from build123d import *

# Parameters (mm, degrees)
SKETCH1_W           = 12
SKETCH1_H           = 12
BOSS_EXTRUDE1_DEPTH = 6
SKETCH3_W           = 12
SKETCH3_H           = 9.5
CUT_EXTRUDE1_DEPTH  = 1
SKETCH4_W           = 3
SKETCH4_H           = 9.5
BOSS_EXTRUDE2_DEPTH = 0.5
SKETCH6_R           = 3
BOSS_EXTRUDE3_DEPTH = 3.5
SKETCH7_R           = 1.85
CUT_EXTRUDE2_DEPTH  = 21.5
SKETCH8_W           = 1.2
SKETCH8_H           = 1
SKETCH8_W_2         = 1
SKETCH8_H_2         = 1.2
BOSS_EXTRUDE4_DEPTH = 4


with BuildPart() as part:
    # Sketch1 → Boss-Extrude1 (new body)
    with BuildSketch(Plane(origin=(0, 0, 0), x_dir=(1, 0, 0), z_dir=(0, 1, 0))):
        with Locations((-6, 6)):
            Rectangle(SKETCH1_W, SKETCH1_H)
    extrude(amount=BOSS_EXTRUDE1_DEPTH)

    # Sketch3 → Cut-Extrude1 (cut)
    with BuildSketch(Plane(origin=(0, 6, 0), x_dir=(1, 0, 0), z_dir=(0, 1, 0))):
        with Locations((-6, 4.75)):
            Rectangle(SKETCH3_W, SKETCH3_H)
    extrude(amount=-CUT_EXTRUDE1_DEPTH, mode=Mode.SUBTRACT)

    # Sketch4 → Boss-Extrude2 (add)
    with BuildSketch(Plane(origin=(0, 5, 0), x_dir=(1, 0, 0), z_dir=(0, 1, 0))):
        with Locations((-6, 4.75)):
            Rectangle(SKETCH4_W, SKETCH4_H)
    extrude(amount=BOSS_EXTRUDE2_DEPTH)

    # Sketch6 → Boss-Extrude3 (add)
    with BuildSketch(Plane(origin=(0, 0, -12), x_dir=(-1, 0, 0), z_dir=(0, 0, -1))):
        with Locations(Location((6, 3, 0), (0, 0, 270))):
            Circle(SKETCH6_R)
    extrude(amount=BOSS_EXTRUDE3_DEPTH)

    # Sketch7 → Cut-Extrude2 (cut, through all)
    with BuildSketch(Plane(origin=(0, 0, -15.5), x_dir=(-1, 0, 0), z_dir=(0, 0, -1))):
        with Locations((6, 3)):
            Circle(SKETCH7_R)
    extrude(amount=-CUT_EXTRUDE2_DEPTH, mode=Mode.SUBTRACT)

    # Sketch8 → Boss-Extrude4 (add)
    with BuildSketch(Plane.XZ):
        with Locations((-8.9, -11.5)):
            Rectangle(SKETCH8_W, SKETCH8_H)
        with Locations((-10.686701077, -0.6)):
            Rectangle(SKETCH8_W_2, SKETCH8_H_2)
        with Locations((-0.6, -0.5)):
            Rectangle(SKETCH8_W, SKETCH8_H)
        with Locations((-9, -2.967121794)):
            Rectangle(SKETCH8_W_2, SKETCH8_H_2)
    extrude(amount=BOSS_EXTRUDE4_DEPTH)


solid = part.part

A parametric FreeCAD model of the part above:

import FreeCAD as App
import Part
import Sketcher

V = App.Vector
Q = App.Units.Quantity


def add_polygon(sketch, points):
    """Adds a closed chain of lines whose ends are joined by coincident constraints."""
    first, n = sketch.GeometryCount, len(points)
    for a, b in zip(points, points[1:] + points[:1]):
        sketch.addGeometry(Part.LineSegment(App.Vector(*a, 0), App.Vector(*b, 0)), False)
    for i in range(n):
        sketch.addConstraint(Sketcher.Constraint("Coincident", first + i, 2, first + (i + 1) % n, 1))

doc = App.newDocument("Part")
body = doc.addObject("PartDesign::Body", "Body")

# Sketch on XZ plane
sketch1 = body.newObject("Sketcher::SketchObject", "Sketch")
sketch1.AttachmentSupport = (doc.getObject("XZ_Plane"), [""])
sketch1.MapMode = "FlatFace"
add_polygon(sketch1, [(-12, -12), (-12, 0), (0, 0), (0, -12)])  # lines 0-3
sketch1.addConstraint([
    Sketcher.Constraint("Vertical", 0),
    Sketcher.Constraint("Horizontal", 1),
    Sketcher.Constraint("Vertical", 2),
    Sketcher.Constraint("Horizontal", 3),
    Sketcher.Constraint("Coincident", 1, 2, -1, 1),
    Sketcher.Constraint("Equal", 3, 0),
    Sketcher.Constraint("DistanceX", 1, 1, 1, 2, Q("12 mm")),
])
pad1 = body.newObject("PartDesign::Pad", "Pad")
pad1.Profile = sketch1
pad1.Length = 6
pad1.Reversed = True

# Sketch on XZ plane
sketch2 = body.newObject("Sketcher::SketchObject", "Sketch001")
sketch2.AttachmentSupport = (doc.getObject("XZ_Plane"), [""])
sketch2.MapMode = "FlatFace"
sketch2.AttachmentOffset = App.Placement(V(0, 0, -6), App.Rotation())
add_polygon(sketch2, [(-12, -9.5), (-12, 0), (0, 0), (0, -9.5)])  # lines 0-3
sketch2.addConstraint([
    Sketcher.Constraint("Vertical", 0),
    Sketcher.Constraint("Horizontal", 1),
    Sketcher.Constraint("Vertical", 2),
    Sketcher.Constraint("Horizontal", 3),
    Sketcher.Constraint("Coincident", 1, 2, -1, 1),
    Sketcher.Constraint("DistanceX", 1, 1, 1, 2, Q("12 mm")),
    Sketcher.Constraint("DistanceY", 0, 1, 0, 2, Q("9.5 mm")),
])
pocket1 = body.newObject("PartDesign::Pocket", "Pocket")
pocket1.Profile = sketch2
pocket1.Length = 1
pocket1.Reversed = True

# Sketch on XZ plane
sketch3 = body.newObject("Sketcher::SketchObject", "Sketch002")
sketch3.AttachmentSupport = (doc.getObject("XZ_Plane"), [""])
sketch3.MapMode = "FlatFace"
sketch3.AttachmentOffset = App.Placement(V(0, 0, -5), App.Rotation())
add_polygon(sketch3, [(-7.5, -9.5), (-7.5, 0), (-4.5, 0), (-4.5, -9.5)])  # lines 0-3
sketch3.addConstraint([
    Sketcher.Constraint("Vertical", 0),
    Sketcher.Constraint("Horizontal", 1),
    Sketcher.Constraint("Vertical", 2),
    Sketcher.Constraint("Horizontal", 3),
    Sketcher.Constraint("PointOnObject", 0, 2, -1),
    Sketcher.Constraint("DistanceX", 1, 1, 1, 2, Q("3 mm")),
    Sketcher.Constraint("DistanceY", 0, 1, 0, 2, Q("9.5 mm")),
    Sketcher.Constraint("DistanceX", 0, 2, -1, 1, Q("7.5 mm")),
])
pad2 = body.newObject("PartDesign::Pad", "Pad001")
pad2.Profile = sketch3
pad2.Length = 0.5
pad2.Reversed = True

# Sketch on XY plane
sketch4 = body.newObject("Sketcher::SketchObject", "Sketch003")
sketch4.AttachmentSupport = (doc.getObject("XY_Plane"), [""])
sketch4.MapMode = "FlatFace"
sketch4.AttachmentOffset = App.Placement(V(0, 0, -12), App.Rotation())
sketch4.addGeometry(Part.Circle(V(-6, 3, 0), V(0, 0, 1), 3), False)
sketch4.addConstraint([
    Sketcher.Constraint("Diameter", 0, Q("6 mm")),
    Sketcher.Constraint("DistanceX", 0, 3, -1, 1, Q("6 mm")),
    Sketcher.Constraint("DistanceY", -1, 1, 0, 3, Q("3 mm")),
])
pad3 = body.newObject("PartDesign::Pad", "Pad002")
pad3.Profile = sketch4
pad3.Length = 3.5
pad3.Reversed = True

# Sketch on XY plane
sketch5 = body.newObject("Sketcher::SketchObject", "Sketch004")
sketch5.AttachmentSupport = (doc.getObject("XY_Plane"), [""])
sketch5.MapMode = "FlatFace"
sketch5.AttachmentOffset = App.Placement(V(0, 0, -15.5), App.Rotation())
sketch5.addGeometry(Part.Circle(V(-6, 3, 0), V(0, 0, 1), 1.85), False)
sketch5.addConstraint([
    Sketcher.Constraint("Diameter", 0, Q("3.7 mm")),
    Sketcher.Constraint("DistanceX", 0, 3, -1, 1, Q("6 mm")),
    Sketcher.Constraint("DistanceY", -1, 1, 0, 3, Q("3 mm")),
])
pocket2 = body.newObject("PartDesign::Pocket", "Pocket001")
pocket2.Profile = sketch5
pocket2.Type = "ThroughAll"
pocket2.Reversed = True

# Sketch on XZ plane
sketch6 = body.newObject("Sketcher::SketchObject", "Sketch005")
sketch6.AttachmentSupport = (doc.getObject("XZ_Plane"), [""])
sketch6.MapMode = "FlatFace"
add_polygon(sketch6, [(-9.5, -11), (-9.5, -12), (-8.3, -12), (-8.3, -11)])  # lines 0-3
add_polygon(sketch6, [(-11.186701, 0), (-11.186701, -1.2), (-10.186701, -1.2), (-10.186701, 0)])  # lines 4-7
add_polygon(sketch6, [(-1.2, 0), (-1.2, -1), (0, -1), (0, 0)])  # lines 8-11
add_polygon(sketch6, [(-9.5, -2.367122), (-9.5, -3.567122), (-8.5, -3.567122), (-8.5, -2.367122)])  # lines 12-15
sketch6.addConstraint([
    Sketcher.Constraint("Vertical", 0),
    Sketcher.Constraint("Horizontal", 1),
    Sketcher.Constraint("Vertical", 2),
    Sketcher.Constraint("Horizontal", 3),
    Sketcher.Constraint("Vertical", 4),
    Sketcher.Constraint("Horizontal", 5),
    Sketcher.Constraint("Vertical", 6),
    Sketcher.Constraint("Horizontal", 7),
    Sketcher.Constraint("Vertical", 8),
    Sketcher.Constraint("Horizontal", 9),
    Sketcher.Constraint("Vertical", 10),
    Sketcher.Constraint("Horizontal", 11),
    Sketcher.Constraint("Vertical", 12),
    Sketcher.Constraint("Horizontal", 13),
    Sketcher.Constraint("Vertical", 14),
    Sketcher.Constraint("Horizontal", 15),
    Sketcher.Constraint("Coincident", 10, 2, -1, 1),
    Sketcher.Constraint("PointOnObject", 6, 2, -1),
    Sketcher.Constraint("Vertical", 3, 2, 12, 2),
    Sketcher.Constraint("Equal", 3, 9),
    Sketcher.Constraint("Equal", 7, 13),
    Sketcher.Constraint("Equal", 15, 0),
    Sketcher.Constraint("Equal", 11, 4),
    Sketcher.Constraint("Equal", 2, 8),
    Sketcher.Constraint("Equal", 6, 12),
    Sketcher.Constraint("DistanceX", 5, 1, 5, 2, Q("1 mm")),
    Sketcher.Constraint("DistanceX", 1, 1, 1, 2, Q("1.2 mm")),
    Sketcher.Constraint("DistanceY", 0, 2, -1, 1, Q("12 mm")),
    Sketcher.Constraint("DistanceX", 0, 2, -1, 1, Q("9.5 mm")),
    Sketcher.Constraint("DistanceX", 4, 2, -1, 1, Q("11.186701 mm")),
    Sketcher.Constraint("DistanceY", 12, 2, -1, 1, Q("3.567122 mm")),
])
pad4 = body.newObject("PartDesign::Pad", "Pad003")
pad4.Profile = sketch6
pad4.Length = 4

doc.recompute()
